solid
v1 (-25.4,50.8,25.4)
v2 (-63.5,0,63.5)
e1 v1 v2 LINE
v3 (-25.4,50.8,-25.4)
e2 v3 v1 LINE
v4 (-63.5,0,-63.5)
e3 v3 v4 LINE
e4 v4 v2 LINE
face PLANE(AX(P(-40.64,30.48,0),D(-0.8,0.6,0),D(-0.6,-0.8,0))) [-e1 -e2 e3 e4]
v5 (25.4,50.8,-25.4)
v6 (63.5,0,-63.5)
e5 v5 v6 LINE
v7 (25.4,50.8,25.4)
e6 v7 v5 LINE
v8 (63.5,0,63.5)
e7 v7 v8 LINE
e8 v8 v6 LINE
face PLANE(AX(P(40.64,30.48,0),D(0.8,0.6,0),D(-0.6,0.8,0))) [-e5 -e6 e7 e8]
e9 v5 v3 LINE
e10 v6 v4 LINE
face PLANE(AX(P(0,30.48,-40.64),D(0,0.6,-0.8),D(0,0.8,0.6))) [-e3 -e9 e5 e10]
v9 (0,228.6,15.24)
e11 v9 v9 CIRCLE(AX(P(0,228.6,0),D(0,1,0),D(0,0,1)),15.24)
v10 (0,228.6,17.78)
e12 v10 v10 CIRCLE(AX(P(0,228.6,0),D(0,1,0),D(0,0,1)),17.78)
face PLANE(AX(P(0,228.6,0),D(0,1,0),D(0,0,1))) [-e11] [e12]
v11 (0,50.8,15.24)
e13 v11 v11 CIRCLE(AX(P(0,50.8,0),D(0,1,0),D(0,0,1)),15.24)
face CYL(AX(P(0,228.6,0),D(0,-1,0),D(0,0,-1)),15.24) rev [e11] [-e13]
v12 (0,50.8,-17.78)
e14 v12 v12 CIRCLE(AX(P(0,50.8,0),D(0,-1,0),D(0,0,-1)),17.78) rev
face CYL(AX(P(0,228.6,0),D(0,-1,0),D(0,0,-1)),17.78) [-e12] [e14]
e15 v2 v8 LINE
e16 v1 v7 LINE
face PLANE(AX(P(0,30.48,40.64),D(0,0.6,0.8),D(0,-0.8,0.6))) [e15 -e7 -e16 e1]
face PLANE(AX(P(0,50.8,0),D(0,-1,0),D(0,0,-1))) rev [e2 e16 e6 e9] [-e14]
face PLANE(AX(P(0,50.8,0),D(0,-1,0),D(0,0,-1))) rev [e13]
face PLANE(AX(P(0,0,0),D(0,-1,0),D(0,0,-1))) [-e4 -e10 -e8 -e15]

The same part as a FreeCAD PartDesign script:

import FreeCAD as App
import Part
import Sketcher
Q = App.Units.Quantity


def add_polygon(sketch, points):
    """Adds a closed chain of lines whose ends are joined by coincident constraints."""
    first, n = sketch.GeometryCount, len(points)
    for a, b in zip(points, points[1:] + points[:1]):
        sketch.addGeometry(Part.LineSegment(App.Vector(*a, 0), App.Vector(*b, 0)), False)
    for i in range(n):
        sketch.addConstraint(Sketcher.Constraint("Coincident", first + i, 2, first + (i + 1) % n, 1))

doc = App.newDocument("Part")
body = doc.addObject("PartDesign::Body", "Body")

# Sketch on XZ plane
sketch1 = doc.addObject("Sketcher::SketchObject", "Sketch")
body.addObject(sketch1)
sketch1.AttachmentSupport = (doc.XZ_Plane, [""])
sketch1.MapMode = "FlatFace"
sketch1.AttachmentOffset = App.Placement(App.Vector(0, 0, -2 * 25.4), App.Rotation())
add_polygon(sketch1, [(-25.4, 25.4), (25.4, 25.4), (25.4, -25.4), (-25.4, -25.4)])  # lines 0-3
sketch1.addConstraint(Sketcher.Constraint("Horizontal", 0))
sketch1.addConstraint(Sketcher.Constraint("Vertical", 1))
sketch1.addConstraint(Sketcher.Constraint("Horizontal", 2))
sketch1.addConstraint(Sketcher.Constraint("Vertical", 3))
sketch1.addConstraint(Sketcher.Constraint("Symmetric", 0, 2, 2, 2, -1, 1))
sketch1.addConstraint(Sketcher.Constraint("Equal", 2, 1))
sketch1.addConstraint(Sketcher.Constraint("DistanceX", 0, 1, 0, 2, Q("2 in")))

# Sketch on XZ plane
sketch2 = doc.addObject("Sketcher::SketchObject", "Sketch001")
body.addObject(sketch2)
sketch2.AttachmentSupport = (doc.XZ_Plane, [""])
sketch2.MapMode = "FlatFace"
add_polygon(sketch2, [(-63.5, 63.5), (63.5, 63.5), (63.5, -63.5), (-63.5, -63.5)])  # lines 0-3
sketch2.addConstraint(Sketcher.Constraint("Horizontal", 0))
sketch2.addConstraint(Sketcher.Constraint("Vertical", 1))
sketch2.addConstraint(Sketcher.Constraint("Horizontal", 2))
sketch2.addConstraint(Sketcher.Constraint("Vertical", 3))
sketch2.addConstraint(Sketcher.Constraint("Symmetric", 0, 2, 2, 2, -1, 1))
sketch2.addConstraint(Sketcher.Constraint("Equal", 2, 1))
sketch2.addConstraint(Sketcher.Constraint("DistanceX", 0, 1, 0, 2, Q("5 in")))

additiveloft = doc.addObject("PartDesign::AdditiveLoft", "AdditiveLoft")
body.addObject(additiveloft)
additiveloft.Profile = sketch1
additiveloft.Sections = [sketch2]

# Sketch on XZ plane
sketch3 = doc.addObject("Sketcher::SketchObject", "Sketch002")
body.addObject(sketch3)
sketch3.AttachmentSupport = (doc.XZ_Plane, [""])
sketch3.MapMode = "FlatFace"
sketch3.AttachmentOffset = App.Placement(App.Vector(0, 0, -2 * 25.4), App.Rotation())
sketch3.addGeometry(Part.Circle(App.Vector(0, 0, 0), App.Vector(0, 0, 1), 17.78), False)
sketch3.addGeometry(Part.Circle(App.Vector(0, 0, 0), App.Vector(0, 0, 1), 15.24), False)
sketch3.addConstraint(Sketcher.Constraint("Coincident", 0, 3, -1, 1))
sketch3.addConstraint(Sketcher.Constraint("Coincident", 1, 3, -1, 1))
sketch3.addConstraint(Sketcher.Constraint("Diameter", 0, Q("1.4 in")))
sketch3.addConstraint(Sketcher.Constraint("Diameter", 1, Q("1.2 in")))
pad1 = doc.addObject("PartDesign::Pad", "Pad")
body.addObject(pad1)
pad1.Profile = sketch3
pad1.Length = Q("7 in")
pad1.Reversed = True

doc.recompute()
